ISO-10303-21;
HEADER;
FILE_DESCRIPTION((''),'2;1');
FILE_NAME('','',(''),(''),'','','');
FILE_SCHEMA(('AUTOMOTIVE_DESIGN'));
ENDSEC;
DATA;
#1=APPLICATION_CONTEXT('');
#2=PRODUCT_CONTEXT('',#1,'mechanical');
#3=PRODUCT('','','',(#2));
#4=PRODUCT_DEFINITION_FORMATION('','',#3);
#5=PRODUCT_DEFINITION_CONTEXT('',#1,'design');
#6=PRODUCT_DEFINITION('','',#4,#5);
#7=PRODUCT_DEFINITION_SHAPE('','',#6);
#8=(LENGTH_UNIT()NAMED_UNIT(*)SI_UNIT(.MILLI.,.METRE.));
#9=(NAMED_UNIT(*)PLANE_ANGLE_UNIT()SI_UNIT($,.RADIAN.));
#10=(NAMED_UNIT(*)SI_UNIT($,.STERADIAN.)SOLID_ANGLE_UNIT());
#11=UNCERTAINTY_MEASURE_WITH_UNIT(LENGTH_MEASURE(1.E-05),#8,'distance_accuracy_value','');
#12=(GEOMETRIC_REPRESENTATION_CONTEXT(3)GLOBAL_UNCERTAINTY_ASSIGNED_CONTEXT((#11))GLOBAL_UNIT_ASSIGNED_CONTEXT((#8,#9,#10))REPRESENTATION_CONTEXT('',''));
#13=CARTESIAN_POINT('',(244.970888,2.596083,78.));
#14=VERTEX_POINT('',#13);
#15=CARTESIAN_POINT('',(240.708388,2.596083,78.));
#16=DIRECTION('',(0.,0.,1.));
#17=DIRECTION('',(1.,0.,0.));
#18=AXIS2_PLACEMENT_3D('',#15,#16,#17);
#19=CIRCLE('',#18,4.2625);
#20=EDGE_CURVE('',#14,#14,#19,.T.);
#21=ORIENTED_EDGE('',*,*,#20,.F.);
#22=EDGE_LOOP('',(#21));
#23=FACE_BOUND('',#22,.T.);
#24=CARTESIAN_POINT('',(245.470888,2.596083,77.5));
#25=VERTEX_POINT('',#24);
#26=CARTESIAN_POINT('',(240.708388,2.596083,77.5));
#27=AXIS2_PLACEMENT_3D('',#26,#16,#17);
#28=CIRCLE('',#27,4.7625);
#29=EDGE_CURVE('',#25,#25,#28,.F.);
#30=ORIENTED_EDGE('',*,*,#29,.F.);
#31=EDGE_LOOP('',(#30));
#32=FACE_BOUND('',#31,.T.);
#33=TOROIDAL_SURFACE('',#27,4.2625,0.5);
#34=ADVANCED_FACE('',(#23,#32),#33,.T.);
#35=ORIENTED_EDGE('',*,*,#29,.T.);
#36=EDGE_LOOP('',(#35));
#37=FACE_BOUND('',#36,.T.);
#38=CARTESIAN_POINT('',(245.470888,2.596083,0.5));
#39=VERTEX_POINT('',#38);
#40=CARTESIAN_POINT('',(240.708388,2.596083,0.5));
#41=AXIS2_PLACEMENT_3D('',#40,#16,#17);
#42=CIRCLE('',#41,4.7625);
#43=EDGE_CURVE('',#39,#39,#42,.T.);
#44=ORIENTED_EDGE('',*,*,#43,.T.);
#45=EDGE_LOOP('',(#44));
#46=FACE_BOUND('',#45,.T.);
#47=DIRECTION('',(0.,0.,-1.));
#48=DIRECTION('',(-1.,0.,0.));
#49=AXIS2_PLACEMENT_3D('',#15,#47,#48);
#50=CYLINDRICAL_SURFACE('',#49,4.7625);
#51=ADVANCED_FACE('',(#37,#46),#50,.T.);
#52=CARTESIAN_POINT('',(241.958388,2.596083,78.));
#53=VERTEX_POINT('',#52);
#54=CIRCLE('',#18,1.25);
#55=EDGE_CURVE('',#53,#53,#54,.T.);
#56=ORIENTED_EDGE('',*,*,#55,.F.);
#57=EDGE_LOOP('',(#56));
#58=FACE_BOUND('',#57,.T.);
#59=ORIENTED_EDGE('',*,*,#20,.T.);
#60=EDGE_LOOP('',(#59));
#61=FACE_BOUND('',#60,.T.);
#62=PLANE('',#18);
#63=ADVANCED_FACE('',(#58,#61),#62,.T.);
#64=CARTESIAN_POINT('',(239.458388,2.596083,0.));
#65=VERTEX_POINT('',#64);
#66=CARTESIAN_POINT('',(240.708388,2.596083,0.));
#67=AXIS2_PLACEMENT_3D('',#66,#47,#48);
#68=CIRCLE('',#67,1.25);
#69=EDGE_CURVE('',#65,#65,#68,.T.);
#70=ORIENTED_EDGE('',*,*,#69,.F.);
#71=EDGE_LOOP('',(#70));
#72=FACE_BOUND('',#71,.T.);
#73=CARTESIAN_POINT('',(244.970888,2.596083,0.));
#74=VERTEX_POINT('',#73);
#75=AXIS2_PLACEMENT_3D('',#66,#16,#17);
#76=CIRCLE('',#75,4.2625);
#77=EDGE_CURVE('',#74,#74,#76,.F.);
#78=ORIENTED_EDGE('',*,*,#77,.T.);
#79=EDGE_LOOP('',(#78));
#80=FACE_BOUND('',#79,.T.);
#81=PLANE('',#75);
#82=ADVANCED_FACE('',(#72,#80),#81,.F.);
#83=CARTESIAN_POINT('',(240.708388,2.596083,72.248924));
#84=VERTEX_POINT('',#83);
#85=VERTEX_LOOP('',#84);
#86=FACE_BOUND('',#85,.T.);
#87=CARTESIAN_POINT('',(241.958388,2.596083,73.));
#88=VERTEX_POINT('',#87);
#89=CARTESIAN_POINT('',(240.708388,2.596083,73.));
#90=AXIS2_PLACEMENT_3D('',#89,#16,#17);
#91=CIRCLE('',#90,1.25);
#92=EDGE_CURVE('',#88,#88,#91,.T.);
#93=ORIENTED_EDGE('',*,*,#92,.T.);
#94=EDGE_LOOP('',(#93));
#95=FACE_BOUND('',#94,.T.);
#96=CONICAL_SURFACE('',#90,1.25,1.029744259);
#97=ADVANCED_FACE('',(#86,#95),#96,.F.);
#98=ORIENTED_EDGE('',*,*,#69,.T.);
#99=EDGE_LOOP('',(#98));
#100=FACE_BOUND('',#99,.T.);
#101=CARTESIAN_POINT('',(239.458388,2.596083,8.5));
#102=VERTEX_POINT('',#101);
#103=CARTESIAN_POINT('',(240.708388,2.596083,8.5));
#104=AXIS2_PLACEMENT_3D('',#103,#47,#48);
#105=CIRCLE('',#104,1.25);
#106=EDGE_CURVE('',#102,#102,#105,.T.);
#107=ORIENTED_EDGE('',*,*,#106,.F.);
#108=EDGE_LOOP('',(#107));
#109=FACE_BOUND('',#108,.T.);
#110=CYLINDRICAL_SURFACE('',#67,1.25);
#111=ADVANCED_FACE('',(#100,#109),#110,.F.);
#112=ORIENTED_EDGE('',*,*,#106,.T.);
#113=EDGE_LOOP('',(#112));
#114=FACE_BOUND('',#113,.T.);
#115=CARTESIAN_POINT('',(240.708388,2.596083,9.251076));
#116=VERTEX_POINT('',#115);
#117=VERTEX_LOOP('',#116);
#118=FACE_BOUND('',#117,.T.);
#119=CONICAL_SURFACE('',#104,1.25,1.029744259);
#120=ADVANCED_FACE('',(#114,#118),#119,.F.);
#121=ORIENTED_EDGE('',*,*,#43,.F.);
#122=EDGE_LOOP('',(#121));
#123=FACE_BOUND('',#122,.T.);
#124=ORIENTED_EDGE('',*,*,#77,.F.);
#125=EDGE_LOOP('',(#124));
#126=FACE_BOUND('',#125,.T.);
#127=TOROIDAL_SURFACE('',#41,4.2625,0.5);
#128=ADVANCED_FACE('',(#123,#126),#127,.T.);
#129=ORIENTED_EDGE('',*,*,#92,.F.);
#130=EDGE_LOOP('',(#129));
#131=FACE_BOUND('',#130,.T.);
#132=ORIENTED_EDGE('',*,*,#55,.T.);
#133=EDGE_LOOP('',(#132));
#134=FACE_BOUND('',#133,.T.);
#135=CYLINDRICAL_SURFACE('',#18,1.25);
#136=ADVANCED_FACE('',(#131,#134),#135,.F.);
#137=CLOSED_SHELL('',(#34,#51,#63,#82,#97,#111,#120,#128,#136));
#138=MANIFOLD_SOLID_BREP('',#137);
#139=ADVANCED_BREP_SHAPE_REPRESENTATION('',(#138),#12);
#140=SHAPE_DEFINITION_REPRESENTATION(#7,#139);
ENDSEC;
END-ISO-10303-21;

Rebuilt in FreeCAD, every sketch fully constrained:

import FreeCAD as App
import Part
import Sketcher

V = App.Vector


def edges_at(feature, points):
    """Names of the edges that pass closest to the given points."""
    edges = feature.Shape.Edges
    near = lambda p: min(range(len(edges)), key=lambda i: edges[i].distToShape(Part.Vertex(*p))[0])
    return sorted({f"Edge{near(p) + 1}" for p in points})

doc = App.newDocument("Part")
body = doc.addObject("PartDesign::Body", "Body")

# Sketch on XY plane
sketch1 = doc.addObject("Sketcher::SketchObject", "Sketch")
body.addObject(sketch1)
sketch1.AttachmentSupport = (doc.XY_Plane, [""])
sketch1.MapMode = "FlatFace"
sketch1.addGeometry(Part.Circle(V(240.708388, 2.596083, 0), V(0, 0, 1), 4.7625), False)
sketch1.addConstraint([
    Sketcher.Constraint("Diameter", 0, 9.525),
    Sketcher.Constraint("DistanceX", -1, 1, 0, 3, 240.708388),
    Sketcher.Constraint("DistanceY", -1, 1, 0, 3, 2.596083),
])
pad1 = doc.addObject("PartDesign::Pad", "Pad")
body.addObject(pad1)
pad1.Profile = sketch1
pad1.Length = 78

# Sketch on XY plane
sketch2 = doc.addObject("Sketcher::SketchObject", "Sketch001")
body.addObject(sketch2)
sketch2.AttachmentSupport = (doc.XY_Plane, [""])
sketch2.MapMode = "FlatFace"
sketch2.addGeometry(Part.Circle(V(240.708388, 2.596083, 0), V(0, 0, 1), 1.25), False)
sketch2.addConstraint([
    Sketcher.Constraint("Diameter", 0, 2.5),
    Sketcher.Constraint("DistanceX", -1, 1, 0, 3, 240.708388),
    Sketcher.Constraint("DistanceY", -1, 1, 0, 3, 2.596083),
])
doc.recompute()
hole = doc.addObject("PartDesign::Hole", "Hole")
body.addObject(hole)
hole.Profile = sketch2
hole.ThreadType = "None"
hole.Diameter = 2.5
hole.DepthType = "Dimension"
hole.Depth = 8.5
hole.DrillPoint = "Angled"
hole.DrillPointAngle = 118
hole.Reversed = True
doc.recompute()

fillet = doc.addObject("PartDesign::Fillet", "Fillet")
body.addObject(fillet)
fillet.Base = (hole, edges_at(hole, [(235.946, 2.596, 0)]))
fillet.Radius = 0.5

# Sketch on XY plane
sketch3 = doc.addObject("Sketcher::SketchObject", "Sketch002")
body.addObject(sketch3)
sketch3.AttachmentSupport = (doc.XY_Plane, [""])
sketch3.MapMode = "FlatFace"
sketch3.AttachmentOffset = App.Placement(V(0, 0, 78), App.Rotation())
sketch3.addGeometry(Part.Circle(V(240.708388, 2.596083, 0), V(0, 0, 1), 1.25), False)
sketch3.addConstraint([
    Sketcher.Constraint("Diameter", 0, 2.5),
    Sketcher.Constraint("DistanceX", -1, 1, 0, 3, 240.708388),
    Sketcher.Constraint("DistanceY", -1, 1, 0, 3, 2.596083),
])
doc.recompute()
hole2 = doc.addObject("PartDesign::Hole", "Hole001")
body.addObject(hole2)
hole2.Profile = sketch3
hole2.ThreadType = "None"
hole2.Diameter = 2.5
hole2.DepthType = "Dimension"
hole2.Depth = 5
hole2.DrillPoint = "Angled"
hole2.DrillPointAngle = 118
doc.recompute()

fillet2 = doc.addObject("PartDesign::Fillet", "Fillet001")
body.addObject(fillet2)
fillet2.Base = (hole2, edges_at(hole2, [(235.946, 2.596, 78)]))
fillet2.Radius = 0.5

doc.recompute()
